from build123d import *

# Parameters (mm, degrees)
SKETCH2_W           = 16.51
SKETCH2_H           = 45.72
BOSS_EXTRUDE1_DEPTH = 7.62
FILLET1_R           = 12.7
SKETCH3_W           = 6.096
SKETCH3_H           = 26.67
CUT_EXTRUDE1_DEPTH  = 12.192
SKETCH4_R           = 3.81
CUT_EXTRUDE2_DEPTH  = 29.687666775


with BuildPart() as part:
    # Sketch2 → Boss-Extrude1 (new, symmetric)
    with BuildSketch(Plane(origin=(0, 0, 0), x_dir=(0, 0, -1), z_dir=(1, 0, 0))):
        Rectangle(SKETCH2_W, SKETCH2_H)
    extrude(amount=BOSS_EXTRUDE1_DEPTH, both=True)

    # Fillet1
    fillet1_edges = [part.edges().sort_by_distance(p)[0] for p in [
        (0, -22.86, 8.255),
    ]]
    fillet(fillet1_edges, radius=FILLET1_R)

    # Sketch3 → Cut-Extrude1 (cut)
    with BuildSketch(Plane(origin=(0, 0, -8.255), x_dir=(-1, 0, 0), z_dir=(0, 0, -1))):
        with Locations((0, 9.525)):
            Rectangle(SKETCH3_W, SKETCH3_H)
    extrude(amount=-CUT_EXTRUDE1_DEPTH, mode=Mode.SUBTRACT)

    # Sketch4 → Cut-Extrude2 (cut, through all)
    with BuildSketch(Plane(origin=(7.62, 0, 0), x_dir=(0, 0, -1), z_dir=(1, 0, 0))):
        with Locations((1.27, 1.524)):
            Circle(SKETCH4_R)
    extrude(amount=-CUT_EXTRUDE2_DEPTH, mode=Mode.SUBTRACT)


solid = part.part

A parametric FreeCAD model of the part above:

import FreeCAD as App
import Part
import Sketcher
Q = App.Units.Quantity


def edges_at(feature, points):
    """Names of the edges that pass closest to the given points."""
    edges = feature.Shape.Edges
    near = lambda p: min(range(len(edges)), key=lambda i: edges[i].distToShape(Part.Vertex(*p))[0])
    return sorted({f"Edge{near(p) + 1}" for p in points})


def add_polygon(sketch, points):
    """Adds a closed chain of lines whose ends are joined by coincident constraints."""
    first, n = sketch.GeometryCount, len(points)
    for a, b in zip(points, points[1:] + points[:1]):
        sketch.addGeometry(Part.LineSegment(App.Vector(*a, 0), App.Vector(*b, 0)), False)
    for i in range(n):
        sketch.addConstraint(Sketcher.Constraint("Coincident", first + i, 2, first + (i + 1) % n, 1))

doc = App.newDocument("Part")
params = doc.addObject("Spreadsheet::Sheet", "Params")
for row, (alias, value) in enumerate([
    ("sketch1_width", "1.8 in"),
    ("sketch1_height", "0.65 in"),
    ("pad1_length", "0.6 in"),
    ("fillet_radius", "0.5 in"),
    ("sketch2_width", "0.24 in"),
    ("sketch2_height", "1.05 in"),
    ("pocket1_length", "0.48 in"),
    ("sketch3_diameter", "0.3 in"),
], start=1):
    params.set(f"A{row}", alias)
    params.set(f"B{row}", "=" + value)
    params.setAlias(f"B{row}", alias)

body = doc.addObject("PartDesign::Body", "Body")

# Sketch on YZ plane
sketch1 = body.newObject("Sketcher::SketchObject", "Sketch")
sketch1.AttachmentSupport = (doc.getObject("YZ_Plane"), [""])
sketch1.MapMode = "FlatFace"
add_polygon(sketch1, [(23, 8), (-23, 8), (-23, -8), (23, -8)])  # lines 0-3
sketch1.addConstraint(Sketcher.Constraint("Horizontal", 0))
sketch1.addConstraint(Sketcher.Constraint("Vertical", 1))
sketch1.addConstraint(Sketcher.Constraint("Horizontal", 2))
sketch1.addConstraint(Sketcher.Constraint("Vertical", 3))
sketch1.addConstraint(Sketcher.Constraint("Symmetric", 0, 2, 2, 2, -1, 1))
sketch1.addConstraint(Sketcher.Constraint("DistanceX", 0, 2, 0, 1, Q("1.8 in")))
sketch1.addConstraint(Sketcher.Constraint("DistanceY", 1, 2, 1, 1, Q("0.65 in")))
sketch1.setExpression("Constraints[9]", "Params.sketch1_width")
sketch1.setExpression("Constraints[10]", "Params.sketch1_height")
pad1 = body.newObject("PartDesign::Pad", "Pad")
pad1.Profile = sketch1
pad1.setExpression("Length", "Params.pad1_length")
pad1.Midplane = True
doc.recompute()

fillet = body.newObject("PartDesign::Fillet", "Fillet")
fillet.Base = (pad1, edges_at(pad1, [(0, -22.86, 8.255)]))
fillet.setExpression("Radius", "Params.fillet_radius")

# Sketch on XY plane
sketch2 = body.newObject("Sketcher::SketchObject", "Sketch001")
sketch2.AttachmentSupport = (doc.getObject("XY_Plane"), [""])
sketch2.MapMode = "FlatFace"
sketch2.AttachmentOffset = App.Placement(App.Vector(0, 0, -0.325 * 25.4), App.Rotation())
add_polygon(sketch2, [(3, 23), (3, -4), (-3, -4), (-3, 23)])  # lines 0-3
sketch2.addConstraint(Sketcher.Constraint("Vertical", 0))
sketch2.addConstraint(Sketcher.Constraint("Horizontal", 1))
sketch2.addConstraint(Sketcher.Constraint("Vertical", 2))
sketch2.addConstraint(Sketcher.Constraint("Horizontal", 3))
sketch2.addConstraint(Sketcher.Constraint("DistanceX", 1, 2, 1, 1, Q("0.24 in")))
sketch2.addConstraint(Sketcher.Constraint("DistanceY", 0, 2, 0, 1, Q("1.05 in")))
sketch2.addConstraint(Sketcher.Constraint("DistanceY", -1, 1, 2, 2, Q("0.9 in")))
sketch2.addConstraint(Sketcher.Constraint("DistanceX", -1, 1, 0, 2, Q("0.12 in")))
sketch2.setExpression("Constraints[8]", "Params.sketch2_width")
sketch2.setExpression("Constraints[9]", "Params.sketch2_height")
pocket1 = body.newObject("PartDesign::Pocket", "Pocket")
pocket1.Profile = sketch2
pocket1.setExpression("Length", "Params.pocket1_length")
pocket1.Reversed = True

# Sketch on YZ plane
sketch3 = body.newObject("Sketcher::SketchObject", "Sketch002")
sketch3.AttachmentSupport = (doc.getObject("YZ_Plane"), [""])
sketch3.MapMode = "FlatFace"
sketch3.AttachmentOffset = App.Placement(App.Vector(0, 0, 0.3 * 25.4), App.Rotation())
sketch3.addGeometry(Part.Circle(App.Vector(1.5, -1.3, 0), App.Vector(0, 0, 1), 3.8), False)
sketch3.addConstraint(Sketcher.Constraint("Diameter", 0, Q("0.3 in")))
sketch3.addConstraint(Sketcher.Constraint("DistanceX", -1, 1, 0, 3, Q("0.06 in")))
sketch3.addConstraint(Sketcher.Constraint("DistanceY", 0, 3, -1, 1, Q("0.05 in")))
sketch3.setExpression("Constraints[0]", "Params.sketch3_diameter")
pocket2 = body.newObject("PartDesign::Pocket", "Pocket001")
pocket2.Profile = sketch3
pocket2.Type = "ThroughAll"

doc.recompute()
